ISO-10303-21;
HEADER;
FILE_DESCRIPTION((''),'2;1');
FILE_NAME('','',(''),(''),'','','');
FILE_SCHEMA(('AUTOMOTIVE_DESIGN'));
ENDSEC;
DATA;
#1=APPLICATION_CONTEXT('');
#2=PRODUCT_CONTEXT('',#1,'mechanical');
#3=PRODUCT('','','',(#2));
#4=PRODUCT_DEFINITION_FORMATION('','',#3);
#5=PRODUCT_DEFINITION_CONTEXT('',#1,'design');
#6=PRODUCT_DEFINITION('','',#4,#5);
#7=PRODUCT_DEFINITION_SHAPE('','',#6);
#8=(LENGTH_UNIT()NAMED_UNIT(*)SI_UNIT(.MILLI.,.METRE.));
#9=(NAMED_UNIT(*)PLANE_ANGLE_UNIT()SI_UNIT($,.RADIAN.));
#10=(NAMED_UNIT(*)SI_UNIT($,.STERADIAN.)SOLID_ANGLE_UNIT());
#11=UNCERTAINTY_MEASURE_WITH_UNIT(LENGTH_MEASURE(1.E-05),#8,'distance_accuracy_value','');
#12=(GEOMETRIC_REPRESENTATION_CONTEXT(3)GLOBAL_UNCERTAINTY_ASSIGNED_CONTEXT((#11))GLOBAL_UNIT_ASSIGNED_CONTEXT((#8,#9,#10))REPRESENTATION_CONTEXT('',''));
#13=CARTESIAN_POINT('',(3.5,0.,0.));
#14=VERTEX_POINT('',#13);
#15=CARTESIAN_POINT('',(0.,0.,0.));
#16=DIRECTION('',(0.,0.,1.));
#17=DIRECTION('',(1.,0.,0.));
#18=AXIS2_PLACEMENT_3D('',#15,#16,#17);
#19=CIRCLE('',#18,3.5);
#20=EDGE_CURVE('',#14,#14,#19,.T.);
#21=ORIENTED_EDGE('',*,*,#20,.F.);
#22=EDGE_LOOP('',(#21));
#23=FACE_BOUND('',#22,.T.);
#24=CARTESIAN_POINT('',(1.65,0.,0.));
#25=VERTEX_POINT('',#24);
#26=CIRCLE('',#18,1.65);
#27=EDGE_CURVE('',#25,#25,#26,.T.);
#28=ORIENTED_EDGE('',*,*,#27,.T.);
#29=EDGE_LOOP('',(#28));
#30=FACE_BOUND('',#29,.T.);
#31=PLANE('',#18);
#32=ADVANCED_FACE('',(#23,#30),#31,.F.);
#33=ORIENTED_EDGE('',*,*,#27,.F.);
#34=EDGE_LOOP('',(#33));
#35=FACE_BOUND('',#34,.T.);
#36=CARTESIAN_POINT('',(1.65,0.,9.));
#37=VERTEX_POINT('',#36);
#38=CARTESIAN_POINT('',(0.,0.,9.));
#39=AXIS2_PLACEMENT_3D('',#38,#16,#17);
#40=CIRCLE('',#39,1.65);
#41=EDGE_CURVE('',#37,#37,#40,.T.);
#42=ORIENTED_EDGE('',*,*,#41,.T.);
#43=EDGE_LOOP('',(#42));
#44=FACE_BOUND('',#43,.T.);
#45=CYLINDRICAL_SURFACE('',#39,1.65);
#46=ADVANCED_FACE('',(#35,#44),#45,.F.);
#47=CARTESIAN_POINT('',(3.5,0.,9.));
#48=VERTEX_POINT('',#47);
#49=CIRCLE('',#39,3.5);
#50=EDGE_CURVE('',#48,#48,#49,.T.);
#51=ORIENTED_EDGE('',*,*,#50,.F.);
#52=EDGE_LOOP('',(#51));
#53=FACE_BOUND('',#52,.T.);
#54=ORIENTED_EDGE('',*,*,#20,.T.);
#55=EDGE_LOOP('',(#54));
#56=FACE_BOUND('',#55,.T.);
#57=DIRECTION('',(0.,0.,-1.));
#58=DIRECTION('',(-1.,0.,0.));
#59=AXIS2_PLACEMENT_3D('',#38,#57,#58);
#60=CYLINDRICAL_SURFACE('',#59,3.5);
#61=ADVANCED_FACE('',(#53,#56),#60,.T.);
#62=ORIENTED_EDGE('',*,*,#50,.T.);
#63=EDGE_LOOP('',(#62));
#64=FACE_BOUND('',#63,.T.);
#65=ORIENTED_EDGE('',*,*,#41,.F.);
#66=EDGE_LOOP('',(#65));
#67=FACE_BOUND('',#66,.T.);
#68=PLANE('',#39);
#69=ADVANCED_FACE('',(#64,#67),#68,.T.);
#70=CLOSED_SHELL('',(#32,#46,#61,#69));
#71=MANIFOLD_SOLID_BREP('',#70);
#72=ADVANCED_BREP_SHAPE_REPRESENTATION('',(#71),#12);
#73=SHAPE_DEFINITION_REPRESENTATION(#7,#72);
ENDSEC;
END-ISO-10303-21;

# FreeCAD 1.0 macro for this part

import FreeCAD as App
import Part
import Sketcher

V = App.Vector
Q = App.Units.Quantity

doc = App.newDocument("Part")
body = doc.addObject("PartDesign::Body", "Body")

# Sketch on XY plane
sketch1 = body.newObject("Sketcher::SketchObject", "Sketch")
sketch1.AttachmentSupport = (doc.getObject("XY_Plane"), [""])
sketch1.MapMode = "FlatFace"
sketch1.addGeometry(Part.Circle(V(0, 0, 0), V(0, 0, 1), 3.5), False)
sketch1.addConstraint([
    Sketcher.Constraint("Coincident", 0, 3, -1, 1),
    Sketcher.Constraint("Diameter", 0, Q("7 mm")),
])
pad1 = body.newObject("PartDesign::Pad", "Pad")
pad1.Profile = sketch1
pad1.Length = 9

# Sketch on XY plane
sketch2 = body.newObject("Sketcher::SketchObject", "Sketch001")
sketch2.AttachmentSupport = (doc.getObject("XY_Plane"), [""])
sketch2.MapMode = "FlatFace"
sketch2.AttachmentOffset = App.Placement(V(0, 0, 9), App.Rotation())
sketch2.addGeometry(Part.Circle(V(0, 0, 0), V(0, 0, 1), 1.65), False)
sketch2.addConstraint([
    Sketcher.Constraint("Coincident", 0, 3, -1, 1),
    Sketcher.Constraint("Diameter", 0, Q("3.3 mm")),
])
doc.recompute()
hole = body.newObject("PartDesign::Hole", "Hole")
hole.Profile = sketch2
hole.ThreadType = "None"
hole.Diameter = 3.3
hole.DepthType = "ThroughAll"

doc.recompute()
